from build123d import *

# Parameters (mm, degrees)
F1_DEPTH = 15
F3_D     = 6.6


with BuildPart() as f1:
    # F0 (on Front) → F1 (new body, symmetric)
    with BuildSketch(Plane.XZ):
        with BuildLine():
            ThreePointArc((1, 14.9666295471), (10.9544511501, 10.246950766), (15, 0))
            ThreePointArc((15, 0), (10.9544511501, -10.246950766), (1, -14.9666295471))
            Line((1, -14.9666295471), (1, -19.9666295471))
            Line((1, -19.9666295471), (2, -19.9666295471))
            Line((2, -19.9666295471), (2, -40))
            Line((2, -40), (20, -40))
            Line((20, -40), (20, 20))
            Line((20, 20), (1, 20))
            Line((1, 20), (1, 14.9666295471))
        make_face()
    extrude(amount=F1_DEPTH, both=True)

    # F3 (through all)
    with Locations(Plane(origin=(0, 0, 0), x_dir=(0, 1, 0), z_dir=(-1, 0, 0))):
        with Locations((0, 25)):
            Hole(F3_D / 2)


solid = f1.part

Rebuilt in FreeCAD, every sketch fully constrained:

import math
import FreeCAD as App
import Part
import Sketcher
Q = App.Units.Quantity

doc = App.newDocument("Part")
body = doc.addObject("PartDesign::Body", "Body")

# Sketch on XZ plane
sketch1 = body.newObject("Sketcher::SketchObject", "Sketch")
sketch1.AttachmentSupport = (doc.getObject("XZ_Plane"), [""])
sketch1.MapMode = "FlatFace"
sketch1.addGeometry(Part.ArcOfCircle(Part.Circle(App.Vector(0, 0, 0), App.Vector(0, 0, 1), 15), math.radians(0), math.radians(86)), False)
sketch1.addGeometry(Part.ArcOfCircle(Part.Circle(App.Vector(0, 0, 0), App.Vector(0, 0, 1), 15), math.radians(-86), math.radians(0)), False)
sketch1.addGeometry(Part.LineSegment(App.Vector(1, -15, 0), App.Vector(1, -20, 0)), False)
sketch1.addGeometry(Part.LineSegment(App.Vector(1, -20, 0), App.Vector(2, -20, 0)), False)
sketch1.addGeometry(Part.LineSegment(App.Vector(2, -20, 0), App.Vector(2, -40, 0)), False)
sketch1.addGeometry(Part.LineSegment(App.Vector(2, -40, 0), App.Vector(20, -40, 0)), False)
sketch1.addGeometry(Part.LineSegment(App.Vector(20, -40, 0), App.Vector(20, 20, 0)), False)
sketch1.addGeometry(Part.LineSegment(App.Vector(20, 20, 0), App.Vector(1, 20, 0)), False)
sketch1.addGeometry(Part.LineSegment(App.Vector(1, 20, 0), App.Vector(1, 15, 0)), False)
sketch1.addConstraint(Sketcher.Constraint("Tangent", 0, 1, 1, 2))
sketch1.addConstraint(Sketcher.Constraint("Coincident", 1, 1, 2, 1))
sketch1.addConstraint(Sketcher.Constraint("Coincident", 2, 2, 3, 1))
sketch1.addConstraint(Sketcher.Constraint("Coincident", 3, 2, 4, 1))
sketch1.addConstraint(Sketcher.Constraint("Coincident", 4, 2, 5, 1))
sketch1.addConstraint(Sketcher.Constraint("Coincident", 5, 2, 6, 1))
sketch1.addConstraint(Sketcher.Constraint("Coincident", 6, 2, 7, 1))
sketch1.addConstraint(Sketcher.Constraint("Coincident", 7, 2, 8, 1))
sketch1.addConstraint(Sketcher.Constraint("Coincident", 8, 2, 0, 2))
sketch1.addConstraint(Sketcher.Constraint("Vertical", 2))
sketch1.addConstraint(Sketcher.Constraint("Horizontal", 3))
sketch1.addConstraint(Sketcher.Constraint("Vertical", 4))
sketch1.addConstraint(Sketcher.Constraint("Horizontal", 5))
sketch1.addConstraint(Sketcher.Constraint("Vertical", 6))
sketch1.addConstraint(Sketcher.Constraint("Horizontal", 7))
sketch1.addConstraint(Sketcher.Constraint("Vertical", 8))
sketch1.addConstraint(Sketcher.Constraint("Coincident", 0, 3, -1, 1))
sketch1.addConstraint(Sketcher.Constraint("Equal", 0, 1))
sketch1.addConstraint(Sketcher.Constraint("PointOnObject", 0, 1, -1))
sketch1.addConstraint(Sketcher.Constraint("Vertical", 2, 2, 7, 2))
sketch1.addConstraint(Sketcher.Constraint("Radius", 0, Q("15 mm")))
sketch1.addConstraint(Sketcher.Constraint("DistanceX", 3, 1, 3, 2, Q("1 mm")))
sketch1.addConstraint(Sketcher.Constraint("DistanceX", 5, 1, 5, 2, Q("18 mm")))
sketch1.addConstraint(Sketcher.Constraint("DistanceY", 2, 2, 2, 1, Q("5 mm")))
sketch1.addConstraint(Sketcher.Constraint("DistanceY", 6, 1, 6, 2, Q("60 mm")))
sketch1.addConstraint(Sketcher.Constraint("DistanceX", -1, 1, 1, 1, Q("1 mm")))
sketch1.addConstraint(Sketcher.Constraint("DistanceY", 4, 2, -1, 1, Q("40 mm")))
pad1 = body.newObject("PartDesign::Pad", "Pad")
pad1.Profile = sketch1
pad1.Length = 30
pad1.Midplane = True

# Sketch on YZ plane
sketch2 = body.newObject("Sketcher::SketchObject", "Sketch001")
sketch2.AttachmentSupport = (doc.getObject("YZ_Plane"), [""])
sketch2.MapMode = "FlatFace"
sketch2.addGeometry(Part.Circle(App.Vector(0, -25, 0), App.Vector(0, 0, 1), 3.3), False)
sketch2.addConstraint(Sketcher.Constraint("PointOnObject", 0, 3, -2))
sketch2.addConstraint(Sketcher.Constraint("Diameter", 0, Q("6.6 mm")))
sketch2.addConstraint(Sketcher.Constraint("DistanceY", 0, 3, -1, 1, Q("25 mm")))
doc.recompute()
hole = body.newObject("PartDesign::Hole", "Hole")
hole.Profile = sketch2
hole.ThreadType = "None"
hole.Diameter = 6.6
hole.DepthType = "ThroughAll"
hole.Reversed = True

doc.recompute()
